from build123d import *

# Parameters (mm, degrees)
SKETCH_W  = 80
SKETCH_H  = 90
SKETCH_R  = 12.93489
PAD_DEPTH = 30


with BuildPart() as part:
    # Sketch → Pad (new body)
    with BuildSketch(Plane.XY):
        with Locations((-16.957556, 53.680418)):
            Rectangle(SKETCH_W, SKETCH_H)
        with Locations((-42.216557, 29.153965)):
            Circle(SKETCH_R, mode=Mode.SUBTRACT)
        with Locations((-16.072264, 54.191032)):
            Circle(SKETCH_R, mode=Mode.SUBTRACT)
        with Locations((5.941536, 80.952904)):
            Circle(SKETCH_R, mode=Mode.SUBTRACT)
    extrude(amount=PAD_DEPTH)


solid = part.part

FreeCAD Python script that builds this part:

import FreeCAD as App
import Part
import Sketcher
from FreeCAD import Vector


def add_polygon(sketch, points):
    """Adds a closed chain of lines whose ends are joined by coincident constraints."""
    first, n = sketch.GeometryCount, len(points)
    for a, b in zip(points, points[1:] + points[:1]):
        sketch.addGeometry(Part.LineSegment(App.Vector(*a, 0), App.Vector(*b, 0)), False)
    for i in range(n):
        sketch.addConstraint(Sketcher.Constraint("Coincident", first + i, 2, first + (i + 1) % n, 1))

doc = App.newDocument("Part")
body = doc.addObject("PartDesign::Body", "Body")

# Sketch on XY plane
sketch1 = body.newObject("Sketcher::SketchObject", "Sketch")
sketch1.AttachmentSupport = (doc.getObject("XY_Plane"), [""])
sketch1.MapMode = "FlatFace"
add_polygon(sketch1, [(-57, 99), (-57, 9), (23, 9), (23, 99)])  # lines 0-3
sketch1.addGeometry(Part.Circle(Vector(-42, 29, 0), Vector(0, 0, 1), 13), False)  # 4
sketch1.addGeometry(Part.Circle(Vector(-16, 54, 0), Vector(0, 0, 1), 13), False)  # 5
sketch1.addGeometry(Part.Circle(Vector(6, 81, 0), Vector(0, 0, 1), 13), False)  # 6
sketch1.addConstraint(Sketcher.Constraint("Vertical", 0))
sketch1.addConstraint(Sketcher.Constraint("Horizontal", 1))
sketch1.addConstraint(Sketcher.Constraint("Vertical", 2))
sketch1.addConstraint(Sketcher.Constraint("Horizontal", 3))
sketch1.addConstraint(Sketcher.Constraint("Equal", 4, 5))
sketch1.addConstraint(Sketcher.Constraint("Equal", 5, 6))
sketch1.addConstraint(Sketcher.Constraint("DistanceX", 1, 1, 1, 2, 80.0))
sketch1.addConstraint(Sketcher.Constraint("DistanceY", 0, 2, 0, 1, 90.0))
sketch1.addConstraint(Sketcher.Constraint("Diameter", 4, 25.86978))
sketch1.addConstraint(Sketcher.Constraint("DistanceX", 0, 2, 4, 3, 14.740999))
sketch1.addConstraint(Sketcher.Constraint("DistanceX", 5, 3, 6, 3, 22.0138))
sketch1.addConstraint(Sketcher.Constraint("DistanceY", -1, 1, 2, 2, 98.680418))
sketch1.addConstraint(Sketcher.Constraint("DistanceY", 4, 3, 6, 3, 51.798939))
sketch1.addConstraint(Sketcher.Constraint("DistanceX", 0, 2, 5, 3, 40.885292))
sketch1.addConstraint(Sketcher.Constraint("DistanceX", 4, 3, -1, 1, 42.216557))
sketch1.addConstraint(Sketcher.Constraint("DistanceY", -1, 1, 4, 3, 29.153965))
sketch1.addConstraint(Sketcher.Constraint("DistanceY", -1, 1, 5, 3, 54.191032))
pad1 = body.newObject("PartDesign::Pad", "Pad")
pad1.Profile = sketch1
pad1.Length = 30

doc.recompute()
